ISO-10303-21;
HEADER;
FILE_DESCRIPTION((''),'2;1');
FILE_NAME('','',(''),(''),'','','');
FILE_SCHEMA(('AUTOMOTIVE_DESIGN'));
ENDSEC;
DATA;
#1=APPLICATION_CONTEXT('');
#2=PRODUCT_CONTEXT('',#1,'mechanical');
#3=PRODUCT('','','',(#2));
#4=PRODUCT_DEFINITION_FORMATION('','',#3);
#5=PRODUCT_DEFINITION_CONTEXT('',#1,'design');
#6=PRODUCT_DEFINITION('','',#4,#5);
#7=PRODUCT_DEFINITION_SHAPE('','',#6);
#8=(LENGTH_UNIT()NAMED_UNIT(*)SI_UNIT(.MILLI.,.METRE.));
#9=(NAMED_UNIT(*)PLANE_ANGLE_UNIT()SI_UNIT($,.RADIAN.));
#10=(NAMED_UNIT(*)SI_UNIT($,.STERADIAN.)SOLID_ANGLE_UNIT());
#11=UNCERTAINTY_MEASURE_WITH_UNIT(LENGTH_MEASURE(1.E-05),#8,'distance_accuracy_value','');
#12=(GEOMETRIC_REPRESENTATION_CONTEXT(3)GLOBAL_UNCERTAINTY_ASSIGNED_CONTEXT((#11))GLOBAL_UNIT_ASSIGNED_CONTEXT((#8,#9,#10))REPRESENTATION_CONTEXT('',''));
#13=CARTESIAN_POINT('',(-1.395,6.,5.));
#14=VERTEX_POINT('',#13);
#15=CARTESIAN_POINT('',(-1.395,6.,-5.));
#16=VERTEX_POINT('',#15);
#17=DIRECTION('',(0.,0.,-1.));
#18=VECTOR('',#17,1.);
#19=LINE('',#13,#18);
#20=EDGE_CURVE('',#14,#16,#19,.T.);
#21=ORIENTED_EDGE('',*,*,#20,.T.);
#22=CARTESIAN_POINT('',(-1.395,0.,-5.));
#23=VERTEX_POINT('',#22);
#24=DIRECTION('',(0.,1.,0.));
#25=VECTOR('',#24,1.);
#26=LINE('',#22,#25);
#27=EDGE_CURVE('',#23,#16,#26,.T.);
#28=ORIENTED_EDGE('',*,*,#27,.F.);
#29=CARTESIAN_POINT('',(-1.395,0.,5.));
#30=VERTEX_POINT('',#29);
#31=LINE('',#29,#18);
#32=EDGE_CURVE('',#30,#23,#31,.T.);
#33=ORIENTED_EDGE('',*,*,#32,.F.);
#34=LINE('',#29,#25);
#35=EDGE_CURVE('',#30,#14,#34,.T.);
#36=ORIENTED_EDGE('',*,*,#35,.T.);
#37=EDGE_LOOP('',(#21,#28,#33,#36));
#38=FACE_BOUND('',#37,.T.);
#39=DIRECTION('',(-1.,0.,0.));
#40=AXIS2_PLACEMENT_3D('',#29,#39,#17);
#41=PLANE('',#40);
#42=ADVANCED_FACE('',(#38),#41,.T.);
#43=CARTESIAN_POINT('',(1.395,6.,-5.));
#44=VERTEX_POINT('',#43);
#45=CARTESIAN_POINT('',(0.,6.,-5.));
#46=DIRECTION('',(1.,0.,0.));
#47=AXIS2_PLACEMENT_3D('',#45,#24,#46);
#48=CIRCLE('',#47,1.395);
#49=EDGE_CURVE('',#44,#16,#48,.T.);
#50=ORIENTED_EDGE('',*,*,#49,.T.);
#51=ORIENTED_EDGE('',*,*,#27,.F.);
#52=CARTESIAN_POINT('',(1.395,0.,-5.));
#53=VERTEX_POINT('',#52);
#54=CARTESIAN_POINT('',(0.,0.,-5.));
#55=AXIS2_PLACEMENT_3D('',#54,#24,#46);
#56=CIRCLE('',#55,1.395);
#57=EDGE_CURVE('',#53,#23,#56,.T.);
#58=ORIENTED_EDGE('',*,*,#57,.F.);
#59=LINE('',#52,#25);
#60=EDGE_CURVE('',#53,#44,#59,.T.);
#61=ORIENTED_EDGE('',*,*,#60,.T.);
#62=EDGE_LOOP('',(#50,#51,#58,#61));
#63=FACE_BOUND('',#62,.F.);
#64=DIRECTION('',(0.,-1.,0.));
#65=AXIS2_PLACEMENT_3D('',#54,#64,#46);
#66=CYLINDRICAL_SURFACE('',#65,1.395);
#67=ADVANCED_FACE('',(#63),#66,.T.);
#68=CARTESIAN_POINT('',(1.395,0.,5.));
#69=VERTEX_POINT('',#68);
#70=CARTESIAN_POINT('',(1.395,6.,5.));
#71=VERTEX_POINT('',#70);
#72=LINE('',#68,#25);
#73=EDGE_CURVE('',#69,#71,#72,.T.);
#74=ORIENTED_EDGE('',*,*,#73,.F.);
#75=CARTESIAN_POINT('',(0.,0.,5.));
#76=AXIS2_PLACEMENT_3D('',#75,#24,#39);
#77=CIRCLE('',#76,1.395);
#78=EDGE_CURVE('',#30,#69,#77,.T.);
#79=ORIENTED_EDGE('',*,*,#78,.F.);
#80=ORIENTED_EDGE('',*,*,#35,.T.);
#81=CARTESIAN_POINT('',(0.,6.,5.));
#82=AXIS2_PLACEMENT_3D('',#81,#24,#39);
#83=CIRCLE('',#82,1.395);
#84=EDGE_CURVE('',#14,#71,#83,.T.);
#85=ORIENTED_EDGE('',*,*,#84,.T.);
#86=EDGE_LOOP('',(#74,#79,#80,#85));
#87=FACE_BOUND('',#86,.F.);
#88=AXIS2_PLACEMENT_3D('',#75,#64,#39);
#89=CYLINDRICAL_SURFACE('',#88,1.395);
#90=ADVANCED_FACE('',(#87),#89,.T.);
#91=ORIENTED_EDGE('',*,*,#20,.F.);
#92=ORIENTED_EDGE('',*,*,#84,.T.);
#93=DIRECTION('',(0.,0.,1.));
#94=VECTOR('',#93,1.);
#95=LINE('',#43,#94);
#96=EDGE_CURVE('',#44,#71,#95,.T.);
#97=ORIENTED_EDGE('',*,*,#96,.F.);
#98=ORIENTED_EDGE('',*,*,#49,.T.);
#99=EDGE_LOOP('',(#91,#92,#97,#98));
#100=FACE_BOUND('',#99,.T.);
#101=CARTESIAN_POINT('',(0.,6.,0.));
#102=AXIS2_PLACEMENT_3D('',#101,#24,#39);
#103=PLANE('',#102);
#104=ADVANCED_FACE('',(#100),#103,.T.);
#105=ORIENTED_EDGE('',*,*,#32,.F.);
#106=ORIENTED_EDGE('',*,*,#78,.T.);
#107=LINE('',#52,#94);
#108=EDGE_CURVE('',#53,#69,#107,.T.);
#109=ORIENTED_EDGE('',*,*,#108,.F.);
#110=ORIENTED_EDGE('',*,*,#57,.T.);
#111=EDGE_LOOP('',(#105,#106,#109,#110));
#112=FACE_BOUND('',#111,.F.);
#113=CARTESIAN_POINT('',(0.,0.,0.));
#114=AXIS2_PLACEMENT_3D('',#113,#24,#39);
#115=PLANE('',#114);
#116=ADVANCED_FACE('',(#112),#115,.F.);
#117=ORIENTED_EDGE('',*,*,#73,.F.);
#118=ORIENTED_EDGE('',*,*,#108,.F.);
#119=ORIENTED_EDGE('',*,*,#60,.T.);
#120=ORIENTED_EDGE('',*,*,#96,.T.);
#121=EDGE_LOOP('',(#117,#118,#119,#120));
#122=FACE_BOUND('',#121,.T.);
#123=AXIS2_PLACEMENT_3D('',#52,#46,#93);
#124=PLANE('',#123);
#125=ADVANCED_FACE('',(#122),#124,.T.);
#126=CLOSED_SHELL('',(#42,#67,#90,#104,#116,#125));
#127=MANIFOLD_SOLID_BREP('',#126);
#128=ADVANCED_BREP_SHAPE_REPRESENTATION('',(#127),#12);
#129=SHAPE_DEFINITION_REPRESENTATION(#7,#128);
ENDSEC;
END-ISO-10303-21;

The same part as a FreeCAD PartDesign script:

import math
import FreeCAD as App
import Part
import Sketcher

V = App.Vector
Q = App.Units.Quantity

doc = App.newDocument("Part")
body = doc.addObject("PartDesign::Body", "Body")

# Sketch on XZ plane
sketch1 = doc.addObject("Sketcher::SketchObject", "Sketch")
body.addObject(sketch1)
sketch1.AttachmentSupport = (doc.XZ_Plane, [""])
sketch1.MapMode = "FlatFace"
sketch1.addGeometry(Part.LineSegment(V(-1.4, -5, 0), V(-1.4, 5, 0)), False)
sketch1.addGeometry(Part.ArcOfCircle(Part.Circle(V(0, 5, 0), V(0, 0, 1), 1.4), math.radians(0), math.radians(180)), False)
sketch1.addGeometry(Part.LineSegment(V(1.4, 5, 0), V(1.4, -5, 0)), False)
sketch1.addGeometry(Part.ArcOfCircle(Part.Circle(V(0, -5, 0), V(0, 0, 1), 1.4), math.radians(180), math.radians(360)), False)
sketch1.addConstraint(Sketcher.Constraint("Tangent", 0, 2, 1, 2))
sketch1.addConstraint(Sketcher.Constraint("Tangent", 1, 1, 2, 1))
sketch1.addConstraint(Sketcher.Constraint("Tangent", 2, 2, 3, 2))
sketch1.addConstraint(Sketcher.Constraint("Tangent", 3, 1, 0, 1))
sketch1.addConstraint(Sketcher.Constraint("Vertical", 0))
sketch1.addConstraint(Sketcher.Constraint("Vertical", 2))
sketch1.addConstraint(Sketcher.Constraint("Symmetric", 1, 3, 3, 3, -1, 1))
sketch1.addConstraint(Sketcher.Constraint("DistanceY", -1, 1, 1, 3, Q("5 mm")))
sketch1.addConstraint(Sketcher.Constraint("Radius", 1, Q("1.395 mm")))
pad1 = doc.addObject("PartDesign::Pad", "Pad")
body.addObject(pad1)
pad1.Profile = sketch1
pad1.Length = 6
pad1.Reversed = True

doc.recompute()
